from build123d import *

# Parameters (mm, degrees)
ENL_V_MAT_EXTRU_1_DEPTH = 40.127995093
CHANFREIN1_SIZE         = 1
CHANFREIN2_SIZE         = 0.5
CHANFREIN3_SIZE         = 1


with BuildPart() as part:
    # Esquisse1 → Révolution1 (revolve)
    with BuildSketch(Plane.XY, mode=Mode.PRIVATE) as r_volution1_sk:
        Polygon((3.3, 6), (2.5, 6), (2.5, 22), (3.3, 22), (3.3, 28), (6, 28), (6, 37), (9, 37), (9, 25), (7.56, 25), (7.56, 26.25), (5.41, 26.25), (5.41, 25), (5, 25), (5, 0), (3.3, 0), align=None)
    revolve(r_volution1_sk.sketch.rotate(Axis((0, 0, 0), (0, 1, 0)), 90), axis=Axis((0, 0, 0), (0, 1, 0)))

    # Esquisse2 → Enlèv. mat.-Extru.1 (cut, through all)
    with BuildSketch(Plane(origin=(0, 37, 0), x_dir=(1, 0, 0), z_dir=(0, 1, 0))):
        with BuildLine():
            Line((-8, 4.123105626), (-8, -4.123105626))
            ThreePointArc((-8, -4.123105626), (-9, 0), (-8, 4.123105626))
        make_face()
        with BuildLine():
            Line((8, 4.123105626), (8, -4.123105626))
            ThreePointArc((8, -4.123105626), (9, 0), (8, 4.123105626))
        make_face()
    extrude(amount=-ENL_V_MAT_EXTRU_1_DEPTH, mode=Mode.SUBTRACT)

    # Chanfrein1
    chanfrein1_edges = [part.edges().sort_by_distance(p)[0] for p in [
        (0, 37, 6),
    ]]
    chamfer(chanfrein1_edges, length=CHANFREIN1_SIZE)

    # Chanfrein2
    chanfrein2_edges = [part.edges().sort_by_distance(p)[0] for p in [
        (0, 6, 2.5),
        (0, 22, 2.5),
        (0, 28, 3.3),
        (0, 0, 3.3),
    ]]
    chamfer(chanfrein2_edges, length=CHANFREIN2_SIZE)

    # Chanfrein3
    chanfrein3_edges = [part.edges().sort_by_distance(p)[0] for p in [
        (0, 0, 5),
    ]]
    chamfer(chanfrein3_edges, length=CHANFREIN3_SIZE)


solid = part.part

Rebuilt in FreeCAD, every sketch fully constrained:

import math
import FreeCAD as App
import Part
import Sketcher
Q = App.Units.Quantity


def edges_at(feature, points):
    """Names of the edges that pass closest to the given points."""
    edges = feature.Shape.Edges
    near = lambda p: min(range(len(edges)), key=lambda i: edges[i].distToShape(Part.Vertex(*p))[0])
    return sorted({f"Edge{near(p) + 1}" for p in points})

doc = App.newDocument("Part")
body = doc.addObject("PartDesign::Body", "Body")

sketch1 = body.newObject("Sketcher::SketchObject", "Sketch")
sketch1.AttachmentSupport = (doc.getObject("XY_Plane"), [""])
sketch1.MapMode = "FlatFace"
sketch1.addGeometry([
    Part.LineSegment(App.Vector(2.5, 6, 0), App.Vector(3.3, 6, 0)),
    Part.LineSegment(App.Vector(3.3, 6, 0), App.Vector(3.3, 0, 0)),
    Part.LineSegment(App.Vector(3.3, 0, 0), App.Vector(5, 0, 0)),
    Part.LineSegment(App.Vector(5, 0, 0), App.Vector(5, 25, 0)),
    Part.LineSegment(App.Vector(5, 25, 0), App.Vector(5.41, 25, 0)),
    Part.LineSegment(App.Vector(5.41, 25, 0), App.Vector(5.41, 26.25, 0)),
    Part.LineSegment(App.Vector(5.41, 26.25, 0), App.Vector(7.56, 26.25, 0)),
    Part.LineSegment(App.Vector(7.56, 26.25, 0), App.Vector(7.56, 25, 0)),
    Part.LineSegment(App.Vector(7.56, 25, 0), App.Vector(9, 25, 0)),
    Part.LineSegment(App.Vector(9, 25, 0), App.Vector(9, 37, 0)),
    Part.LineSegment(App.Vector(9, 37, 0), App.Vector(6, 37, 0)),
    Part.LineSegment(App.Vector(6, 37, 0), App.Vector(6, 28, 0)),
    Part.LineSegment(App.Vector(6, 28, 0), App.Vector(3.3, 28, 0)),
    Part.LineSegment(App.Vector(3.3, 28, 0), App.Vector(3.3, 22, 0)),
    Part.LineSegment(App.Vector(3.3, 22, 0), App.Vector(2.5, 22, 0)),
    Part.LineSegment(App.Vector(2.5, 22, 0), App.Vector(2.5, 6, 0)),
], False)
sketch1.addConstraint([
    Sketcher.Constraint("Coincident", 0, 2, 1, 1),
    Sketcher.Constraint("Coincident", 1, 2, 2, 1),
    Sketcher.Constraint("Coincident", 2, 2, 3, 1),
    Sketcher.Constraint("Coincident", 3, 2, 4, 1),
    Sketcher.Constraint("Coincident", 4, 2, 5, 1),
    Sketcher.Constraint("Coincident", 5, 2, 6, 1),
    Sketcher.Constraint("Coincident", 6, 2, 7, 1),
    Sketcher.Constraint("Coincident", 7, 2, 8, 1),
    Sketcher.Constraint("Coincident", 8, 2, 9, 1),
    Sketcher.Constraint("Coincident", 9, 2, 10, 1),
    Sketcher.Constraint("Coincident", 10, 2, 11, 1),
    Sketcher.Constraint("Coincident", 11, 2, 12, 1),
    Sketcher.Constraint("Coincident", 12, 2, 13, 1),
    Sketcher.Constraint("Coincident", 13, 2, 14, 1),
    Sketcher.Constraint("Coincident", 14, 2, 15, 1),
    Sketcher.Constraint("Coincident", 15, 2, 0, 1),
    Sketcher.Constraint("Horizontal", 0),
    Sketcher.Constraint("Vertical", 1),
    Sketcher.Constraint("Horizontal", 2),
    Sketcher.Constraint("Vertical", 3),
    Sketcher.Constraint("Horizontal", 4),
    Sketcher.Constraint("Vertical", 5),
    Sketcher.Constraint("Horizontal", 6),
    Sketcher.Constraint("Vertical", 7),
    Sketcher.Constraint("Horizontal", 8),
    Sketcher.Constraint("Vertical", 9),
    Sketcher.Constraint("Horizontal", 10),
    Sketcher.Constraint("Vertical", 11),
    Sketcher.Constraint("Horizontal", 12),
    Sketcher.Constraint("Vertical", 13),
    Sketcher.Constraint("Horizontal", 14),
    Sketcher.Constraint("Vertical", 15),
    Sketcher.Constraint("PointOnObject", 1, 2, -1),
    Sketcher.Constraint("Horizontal", 4, 2, 7, 2),
    Sketcher.Constraint("Vertical", 1, 2, 12, 2),
    Sketcher.Constraint("Equal", 1, 13),
    Sketcher.Constraint("DistanceX", 10, 2, 10, 1, Q("3 mm")),
    Sketcher.Constraint("DistanceY", 1, 2, 1, 1, Q("6 mm")),
    Sketcher.Constraint("DistanceY", 3, 1, 3, 2, Q("25 mm")),
    Sketcher.Constraint("DistanceY", 9, 1, 9, 2, Q("12 mm")),
    Sketcher.Constraint("DistanceY", 11, 2, 11, 1, Q("9 mm")),
    Sketcher.Constraint("DistanceX", 0, 1, 0, 2, Q("0.8 mm")),
    Sketcher.Constraint("DistanceX", 2, 1, 2, 2, Q("1.7 mm")),
    Sketcher.Constraint("DistanceX", 12, 2, 12, 1, Q("2.7 mm")),
    Sketcher.Constraint("DistanceX", -1, 1, 2, 2, Q("5 mm")),
    Sketcher.Constraint("DistanceX", 4, 1, 4, 2, Q("0.41 mm")),
    Sketcher.Constraint("DistanceX", 6, 1, 6, 2, Q("2.15 mm")),
    Sketcher.Constraint("DistanceY", 5, 1, 5, 2, Q("1.25 mm")),
])
revolution = body.newObject("PartDesign::Revolution", "Revolution")
revolution.Profile = sketch1
revolution.ReferenceAxis = (sketch1, ["V_Axis"])
revolution.Angle = 360

sketch2 = body.newObject("Sketcher::SketchObject", "Sketch001")
sketch2.AttachmentSupport = (doc.getObject("XZ_Plane"), [""])
sketch2.MapMode = "FlatFace"
sketch2.AttachmentOffset = App.Placement(App.Vector(0, 0, -37), App.Rotation())
sketch2.addGeometry([
    Part.LineSegment(App.Vector(-8, 4.123106, 0), App.Vector(-8, -4.123106, 0)),
    Part.ArcOfCircle(Part.Circle(App.Vector(0, 0, 0), App.Vector(0, 0, 1), 9), math.radians(152.733956), math.radians(207.266044)),
    Part.LineSegment(App.Vector(8, -4.123106, 0), App.Vector(8, 4.123106, 0)),
    Part.ArcOfCircle(Part.Circle(App.Vector(0, 0, 0), App.Vector(0, 0, 1), 9), math.radians(-27.266044), math.radians(27.266044)),
], False)
sketch2.addConstraint([
    Sketcher.Constraint("Coincident", 0, 1, 1, 1),
    Sketcher.Constraint("Coincident", 1, 2, 0, 2),
    Sketcher.Constraint("Coincident", 2, 1, 3, 1),
    Sketcher.Constraint("Coincident", 3, 2, 2, 2),
    Sketcher.Constraint("Vertical", 0),
    Sketcher.Constraint("Vertical", 2),
    Sketcher.Constraint("Coincident", 1, 3, -1, 1),
    Sketcher.Constraint("Coincident", 3, 3, -1, 1),
    Sketcher.Constraint("Equal", 1, 3),
    Sketcher.Constraint("Horizontal", 1, 2, 2, 1),
    Sketcher.Constraint("Radius", 1, Q("9 mm")),
    Sketcher.Constraint("DistanceX", 0, 1, -1, 1, Q("8 mm")),
])
pocket1 = body.newObject("PartDesign::Pocket", "Pocket")
pocket1.Profile = sketch2
pocket1.Type = "ThroughAll"
pocket1.Reversed = True
doc.recompute()

chamfer = body.newObject("PartDesign::Chamfer", "Chamfer")
chamfer.Base = (pocket1, edges_at(pocket1, [(0, 37, 6)]))
chamfer.Size = 1
doc.recompute()

chamfer2 = body.newObject("PartDesign::Chamfer", "Chamfer001")
chamfer2.Base = (chamfer, edges_at(chamfer, [
    (0, 6, 2.5),
    (0, 22, 2.5),
    (0, 28, 3.3),
    (0, 0, 3.3),
]))
chamfer2.Size = 0.5
doc.recompute()

chamfer3 = body.newObject("PartDesign::Chamfer", "Chamfer002")
chamfer3.Base = (chamfer2, edges_at(chamfer2, [(0, 0, 5)]))
chamfer3.Size = 1

doc.recompute()
